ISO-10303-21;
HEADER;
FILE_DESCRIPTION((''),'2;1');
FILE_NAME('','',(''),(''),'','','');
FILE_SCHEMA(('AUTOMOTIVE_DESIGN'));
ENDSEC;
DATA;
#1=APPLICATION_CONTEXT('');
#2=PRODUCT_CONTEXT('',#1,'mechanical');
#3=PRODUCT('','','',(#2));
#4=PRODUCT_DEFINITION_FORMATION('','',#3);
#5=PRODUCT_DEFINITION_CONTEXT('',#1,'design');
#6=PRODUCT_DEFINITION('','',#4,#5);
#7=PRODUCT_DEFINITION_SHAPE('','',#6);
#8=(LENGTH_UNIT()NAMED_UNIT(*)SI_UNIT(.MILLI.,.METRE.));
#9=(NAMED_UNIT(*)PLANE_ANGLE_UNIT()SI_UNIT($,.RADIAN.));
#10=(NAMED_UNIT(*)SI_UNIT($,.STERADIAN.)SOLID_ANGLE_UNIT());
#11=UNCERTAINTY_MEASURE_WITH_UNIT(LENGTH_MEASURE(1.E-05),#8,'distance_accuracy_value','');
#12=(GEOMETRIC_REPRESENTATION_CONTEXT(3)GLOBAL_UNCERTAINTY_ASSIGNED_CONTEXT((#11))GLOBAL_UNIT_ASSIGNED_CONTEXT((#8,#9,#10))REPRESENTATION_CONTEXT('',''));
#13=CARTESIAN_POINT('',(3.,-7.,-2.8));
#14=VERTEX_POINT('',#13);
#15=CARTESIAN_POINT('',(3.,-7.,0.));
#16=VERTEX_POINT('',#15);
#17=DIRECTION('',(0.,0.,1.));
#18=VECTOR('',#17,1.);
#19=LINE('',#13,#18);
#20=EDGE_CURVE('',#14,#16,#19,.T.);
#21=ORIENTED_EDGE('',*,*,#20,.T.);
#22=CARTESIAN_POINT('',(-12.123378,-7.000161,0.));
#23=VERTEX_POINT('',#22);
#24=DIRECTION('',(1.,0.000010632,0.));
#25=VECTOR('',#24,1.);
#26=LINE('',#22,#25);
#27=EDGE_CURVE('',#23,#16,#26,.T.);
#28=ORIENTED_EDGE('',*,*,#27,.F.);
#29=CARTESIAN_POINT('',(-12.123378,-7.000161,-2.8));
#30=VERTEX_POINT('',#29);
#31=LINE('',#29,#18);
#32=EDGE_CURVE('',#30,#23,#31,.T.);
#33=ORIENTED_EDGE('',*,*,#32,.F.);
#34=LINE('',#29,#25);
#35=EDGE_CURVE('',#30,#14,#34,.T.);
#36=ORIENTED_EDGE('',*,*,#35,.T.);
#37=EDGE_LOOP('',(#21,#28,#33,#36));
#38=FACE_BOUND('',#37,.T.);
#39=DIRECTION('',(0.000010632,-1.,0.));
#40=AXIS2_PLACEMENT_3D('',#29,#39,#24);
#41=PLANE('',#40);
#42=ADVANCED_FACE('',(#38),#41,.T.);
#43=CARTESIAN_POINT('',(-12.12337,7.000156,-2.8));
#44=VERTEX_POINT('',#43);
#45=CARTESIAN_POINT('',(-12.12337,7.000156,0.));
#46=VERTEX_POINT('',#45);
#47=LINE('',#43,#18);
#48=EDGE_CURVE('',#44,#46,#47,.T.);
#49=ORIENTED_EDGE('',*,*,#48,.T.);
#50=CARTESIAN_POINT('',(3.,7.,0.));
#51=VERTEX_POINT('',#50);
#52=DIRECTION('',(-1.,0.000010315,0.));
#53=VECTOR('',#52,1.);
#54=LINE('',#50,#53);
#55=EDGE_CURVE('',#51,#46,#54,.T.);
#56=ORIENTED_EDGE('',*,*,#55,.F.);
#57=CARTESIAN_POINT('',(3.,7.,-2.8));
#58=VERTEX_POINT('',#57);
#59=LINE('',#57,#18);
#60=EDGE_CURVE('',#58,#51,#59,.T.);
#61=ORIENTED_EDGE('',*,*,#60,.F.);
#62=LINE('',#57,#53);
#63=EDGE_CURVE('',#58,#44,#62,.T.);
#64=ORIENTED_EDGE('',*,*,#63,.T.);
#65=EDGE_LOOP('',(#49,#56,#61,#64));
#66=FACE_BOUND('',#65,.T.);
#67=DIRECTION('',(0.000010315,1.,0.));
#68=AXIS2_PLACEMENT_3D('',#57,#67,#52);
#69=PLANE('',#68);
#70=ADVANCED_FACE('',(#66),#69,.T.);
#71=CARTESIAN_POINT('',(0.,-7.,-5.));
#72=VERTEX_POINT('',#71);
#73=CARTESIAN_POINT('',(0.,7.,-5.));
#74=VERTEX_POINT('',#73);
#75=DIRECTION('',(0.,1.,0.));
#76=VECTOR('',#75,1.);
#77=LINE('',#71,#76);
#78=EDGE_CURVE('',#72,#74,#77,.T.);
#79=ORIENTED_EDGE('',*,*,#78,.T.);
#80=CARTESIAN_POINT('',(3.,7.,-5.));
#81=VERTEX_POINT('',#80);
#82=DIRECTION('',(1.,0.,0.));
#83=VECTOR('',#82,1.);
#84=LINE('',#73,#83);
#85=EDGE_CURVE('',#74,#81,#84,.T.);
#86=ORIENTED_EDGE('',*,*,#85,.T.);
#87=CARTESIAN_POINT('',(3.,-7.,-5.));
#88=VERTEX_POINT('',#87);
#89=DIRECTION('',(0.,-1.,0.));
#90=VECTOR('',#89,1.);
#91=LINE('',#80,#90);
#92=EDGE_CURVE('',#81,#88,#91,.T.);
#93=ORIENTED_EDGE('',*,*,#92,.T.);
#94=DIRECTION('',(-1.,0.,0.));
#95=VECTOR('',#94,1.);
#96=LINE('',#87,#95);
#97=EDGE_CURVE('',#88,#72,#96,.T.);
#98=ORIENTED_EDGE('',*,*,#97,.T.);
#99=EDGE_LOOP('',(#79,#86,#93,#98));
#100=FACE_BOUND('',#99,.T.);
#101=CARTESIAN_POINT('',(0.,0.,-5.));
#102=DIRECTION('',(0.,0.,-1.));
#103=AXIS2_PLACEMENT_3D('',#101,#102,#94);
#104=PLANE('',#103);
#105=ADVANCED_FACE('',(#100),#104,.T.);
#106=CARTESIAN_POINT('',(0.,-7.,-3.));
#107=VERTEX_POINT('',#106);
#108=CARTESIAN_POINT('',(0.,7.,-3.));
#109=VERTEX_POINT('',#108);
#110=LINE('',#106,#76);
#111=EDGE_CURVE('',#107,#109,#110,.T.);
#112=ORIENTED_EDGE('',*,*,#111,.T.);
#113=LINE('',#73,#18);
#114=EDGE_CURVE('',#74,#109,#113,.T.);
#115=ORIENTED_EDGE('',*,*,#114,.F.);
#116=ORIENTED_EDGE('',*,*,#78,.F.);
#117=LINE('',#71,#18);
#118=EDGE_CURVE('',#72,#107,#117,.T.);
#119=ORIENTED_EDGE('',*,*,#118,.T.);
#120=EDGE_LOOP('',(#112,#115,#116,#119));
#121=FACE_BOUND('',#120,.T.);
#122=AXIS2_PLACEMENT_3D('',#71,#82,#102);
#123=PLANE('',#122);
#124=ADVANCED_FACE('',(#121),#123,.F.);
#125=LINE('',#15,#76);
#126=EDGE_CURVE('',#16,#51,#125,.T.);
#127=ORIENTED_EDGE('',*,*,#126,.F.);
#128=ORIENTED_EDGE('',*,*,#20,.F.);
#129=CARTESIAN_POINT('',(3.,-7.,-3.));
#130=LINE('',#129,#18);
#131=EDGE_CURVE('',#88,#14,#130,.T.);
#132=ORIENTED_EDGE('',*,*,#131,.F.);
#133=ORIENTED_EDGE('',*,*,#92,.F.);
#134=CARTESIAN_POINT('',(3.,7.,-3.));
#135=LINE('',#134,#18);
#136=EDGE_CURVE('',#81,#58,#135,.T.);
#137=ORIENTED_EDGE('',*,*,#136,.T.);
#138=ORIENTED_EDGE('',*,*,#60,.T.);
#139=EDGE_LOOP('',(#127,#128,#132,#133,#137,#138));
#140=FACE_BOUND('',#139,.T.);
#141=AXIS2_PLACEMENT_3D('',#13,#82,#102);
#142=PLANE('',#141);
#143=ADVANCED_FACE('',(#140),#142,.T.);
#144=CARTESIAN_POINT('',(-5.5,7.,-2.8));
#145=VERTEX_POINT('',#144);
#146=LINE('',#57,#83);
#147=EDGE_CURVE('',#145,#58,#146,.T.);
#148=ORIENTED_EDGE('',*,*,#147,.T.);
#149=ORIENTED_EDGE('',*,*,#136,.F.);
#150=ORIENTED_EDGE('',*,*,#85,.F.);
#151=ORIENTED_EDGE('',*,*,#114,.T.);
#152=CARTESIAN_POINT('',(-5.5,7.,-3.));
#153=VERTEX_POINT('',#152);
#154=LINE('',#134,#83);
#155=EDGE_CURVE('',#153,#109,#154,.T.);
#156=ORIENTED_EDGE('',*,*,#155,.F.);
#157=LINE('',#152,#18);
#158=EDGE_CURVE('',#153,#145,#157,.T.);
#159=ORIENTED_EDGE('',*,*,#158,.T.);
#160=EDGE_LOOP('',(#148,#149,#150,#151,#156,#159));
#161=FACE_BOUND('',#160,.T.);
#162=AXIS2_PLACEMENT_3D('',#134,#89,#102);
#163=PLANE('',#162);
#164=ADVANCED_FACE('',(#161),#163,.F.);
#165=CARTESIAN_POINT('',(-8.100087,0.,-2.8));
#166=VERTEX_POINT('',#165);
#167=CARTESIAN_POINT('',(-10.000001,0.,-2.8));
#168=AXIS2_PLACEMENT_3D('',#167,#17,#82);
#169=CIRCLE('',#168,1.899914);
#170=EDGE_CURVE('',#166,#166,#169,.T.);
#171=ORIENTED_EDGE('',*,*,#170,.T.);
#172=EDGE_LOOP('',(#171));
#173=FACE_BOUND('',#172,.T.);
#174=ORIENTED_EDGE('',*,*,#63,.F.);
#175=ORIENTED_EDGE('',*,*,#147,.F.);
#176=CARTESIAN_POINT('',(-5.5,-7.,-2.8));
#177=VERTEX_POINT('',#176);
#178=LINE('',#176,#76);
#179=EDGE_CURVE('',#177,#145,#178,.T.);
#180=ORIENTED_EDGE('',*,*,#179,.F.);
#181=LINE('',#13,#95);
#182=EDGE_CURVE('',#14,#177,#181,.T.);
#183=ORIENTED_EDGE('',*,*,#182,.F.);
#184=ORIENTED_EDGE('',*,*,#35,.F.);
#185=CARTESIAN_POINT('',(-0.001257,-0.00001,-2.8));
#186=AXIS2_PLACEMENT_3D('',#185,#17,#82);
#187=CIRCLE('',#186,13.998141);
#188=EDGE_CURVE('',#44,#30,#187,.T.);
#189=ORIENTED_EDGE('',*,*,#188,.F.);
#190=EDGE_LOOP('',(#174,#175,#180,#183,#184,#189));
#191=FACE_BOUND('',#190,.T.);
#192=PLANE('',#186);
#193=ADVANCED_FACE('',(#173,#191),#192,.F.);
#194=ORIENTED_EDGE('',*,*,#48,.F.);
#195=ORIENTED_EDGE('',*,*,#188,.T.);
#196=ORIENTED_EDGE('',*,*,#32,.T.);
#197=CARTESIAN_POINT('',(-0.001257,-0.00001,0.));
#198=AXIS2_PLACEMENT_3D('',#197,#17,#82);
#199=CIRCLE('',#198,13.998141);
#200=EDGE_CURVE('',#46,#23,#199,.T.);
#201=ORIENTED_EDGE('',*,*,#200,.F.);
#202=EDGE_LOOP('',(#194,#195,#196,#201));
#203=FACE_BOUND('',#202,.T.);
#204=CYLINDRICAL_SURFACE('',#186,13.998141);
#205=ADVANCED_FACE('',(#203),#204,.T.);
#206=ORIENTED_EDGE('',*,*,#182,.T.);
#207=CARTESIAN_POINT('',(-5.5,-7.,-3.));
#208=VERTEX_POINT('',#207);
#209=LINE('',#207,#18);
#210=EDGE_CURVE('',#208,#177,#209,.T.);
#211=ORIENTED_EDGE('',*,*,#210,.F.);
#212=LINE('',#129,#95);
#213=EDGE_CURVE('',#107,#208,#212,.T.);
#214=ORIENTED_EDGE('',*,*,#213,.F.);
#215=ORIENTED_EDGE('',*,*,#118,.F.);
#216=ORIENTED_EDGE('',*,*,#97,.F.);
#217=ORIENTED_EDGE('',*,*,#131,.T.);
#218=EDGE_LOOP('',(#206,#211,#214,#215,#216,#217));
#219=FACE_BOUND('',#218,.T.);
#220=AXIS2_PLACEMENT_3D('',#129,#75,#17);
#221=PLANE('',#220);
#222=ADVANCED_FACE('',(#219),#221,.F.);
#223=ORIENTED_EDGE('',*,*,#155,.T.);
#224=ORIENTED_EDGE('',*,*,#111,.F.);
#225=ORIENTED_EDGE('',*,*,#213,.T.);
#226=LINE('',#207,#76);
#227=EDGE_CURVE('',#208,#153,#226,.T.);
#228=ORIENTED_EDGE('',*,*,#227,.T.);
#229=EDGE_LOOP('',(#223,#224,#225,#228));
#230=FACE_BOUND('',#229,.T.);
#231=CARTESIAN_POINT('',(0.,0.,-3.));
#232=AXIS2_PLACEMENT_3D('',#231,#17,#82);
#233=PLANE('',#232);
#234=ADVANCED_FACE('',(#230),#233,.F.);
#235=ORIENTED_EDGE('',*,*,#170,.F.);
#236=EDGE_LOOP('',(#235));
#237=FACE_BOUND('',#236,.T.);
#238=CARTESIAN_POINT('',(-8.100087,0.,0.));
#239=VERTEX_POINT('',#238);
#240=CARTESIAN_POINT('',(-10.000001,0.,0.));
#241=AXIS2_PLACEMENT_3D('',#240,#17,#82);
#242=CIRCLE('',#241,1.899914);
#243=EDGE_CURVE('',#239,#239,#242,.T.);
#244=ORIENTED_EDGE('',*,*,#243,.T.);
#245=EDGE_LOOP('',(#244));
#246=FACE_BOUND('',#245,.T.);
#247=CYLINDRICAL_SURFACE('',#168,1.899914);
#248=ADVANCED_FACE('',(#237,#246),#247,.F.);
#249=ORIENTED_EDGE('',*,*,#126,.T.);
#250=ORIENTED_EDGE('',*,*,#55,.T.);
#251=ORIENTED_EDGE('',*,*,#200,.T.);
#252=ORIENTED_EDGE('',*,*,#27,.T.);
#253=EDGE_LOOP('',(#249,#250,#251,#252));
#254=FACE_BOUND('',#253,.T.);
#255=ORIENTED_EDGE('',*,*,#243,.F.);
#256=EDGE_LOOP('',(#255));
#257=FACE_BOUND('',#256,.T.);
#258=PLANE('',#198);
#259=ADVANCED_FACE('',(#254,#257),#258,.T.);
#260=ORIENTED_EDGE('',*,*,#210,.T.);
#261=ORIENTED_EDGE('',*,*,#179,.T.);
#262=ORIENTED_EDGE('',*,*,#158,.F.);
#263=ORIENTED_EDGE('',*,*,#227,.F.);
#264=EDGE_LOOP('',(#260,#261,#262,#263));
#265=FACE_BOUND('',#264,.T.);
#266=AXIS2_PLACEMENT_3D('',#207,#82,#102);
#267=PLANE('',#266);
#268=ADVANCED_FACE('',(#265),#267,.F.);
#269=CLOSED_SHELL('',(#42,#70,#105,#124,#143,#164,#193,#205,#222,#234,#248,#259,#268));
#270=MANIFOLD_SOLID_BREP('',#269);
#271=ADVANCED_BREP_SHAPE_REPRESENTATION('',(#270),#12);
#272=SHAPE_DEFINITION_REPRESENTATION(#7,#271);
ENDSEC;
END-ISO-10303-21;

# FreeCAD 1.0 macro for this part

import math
import FreeCAD as App
import Part
import Sketcher

V = App.Vector
Q = App.Units.Quantity


def add_polygon(sketch, points):
    """Adds a closed chain of lines whose ends are joined by coincident constraints."""
    first, n = sketch.GeometryCount, len(points)
    for a, b in zip(points, points[1:] + points[:1]):
        sketch.addGeometry(Part.LineSegment(App.Vector(*a, 0), App.Vector(*b, 0)), False)
    for i in range(n):
        sketch.addConstraint(Sketcher.Constraint("Coincident", first + i, 2, first + (i + 1) % n, 1))

doc = App.newDocument("Part")
body = doc.addObject("PartDesign::Body", "Body")

# Sketch on XY plane
sketch1 = doc.addObject("Sketcher::SketchObject", "Sketch")
body.addObject(sketch1)
sketch1.AttachmentSupport = (doc.XY_Plane, [""])
sketch1.MapMode = "FlatFace"
sketch1.addGeometry(Part.LineSegment(V(3, 7, 0), V(-12.12337, 7.000156, 0)), False)
sketch1.addGeometry(Part.ArcOfCircle(Part.Circle(V(-0.001257, -0.00001, 0), V(0, 0, 1), 13.998141), math.radians(149.994823), math.radians(210.005108)), False)
sketch1.addGeometry(Part.LineSegment(V(-12.123378, -7.000161, 0), V(3, -7, 0)), False)
sketch1.addGeometry(Part.LineSegment(V(3, -7, 0), V(3, 7, 0)), False)
sketch1.addGeometry(Part.Circle(V(-10.000001, 0, 0), V(0, 0, 1), 1.899914), False)
sketch1.addConstraint(Sketcher.Constraint("Coincident", 0, 2, 1, 1))
sketch1.addConstraint(Sketcher.Constraint("Coincident", 1, 2, 2, 1))
sketch1.addConstraint(Sketcher.Constraint("Coincident", 2, 2, 3, 1))
sketch1.addConstraint(Sketcher.Constraint("Coincident", 3, 2, 0, 1))
sketch1.addConstraint(Sketcher.Constraint("Vertical", 3))
sketch1.addConstraint(Sketcher.Constraint("Symmetric", 0, 2, 1, 2, -1))
sketch1.addConstraint(Sketcher.Constraint("PointOnObject", 4, 3, -1))
sketch1.addConstraint(Sketcher.Constraint("DistanceY", 3, 1, 3, 2, Q("14 mm")))
sketch1.addConstraint(Sketcher.Constraint("DistanceX", 4, 3, -1, 1, Q("10.000001 mm")))
sketch1.addConstraint(Sketcher.Constraint("DistanceX", -1, 1, 2, 2, Q("3 mm")))
sketch1.addConstraint(Sketcher.Constraint("DistanceY", 2, 2, -1, 1, Q("7 mm")))
sketch1.addConstraint(Sketcher.Constraint("Radius", 1, Q("13.998141 mm")))
sketch1.addConstraint(Sketcher.Constraint("Diameter", 4, Q("3.799827 mm")))
sketch1.addConstraint(Sketcher.Constraint("Distance", 0, Q("15.12337 mm")))
sketch1.addConstraint(Sketcher.Constraint("DistanceY", 1, 2, -1, 1, Q("7.000161 mm")))
pad1 = doc.addObject("PartDesign::Pad", "Pad")
body.addObject(pad1)
pad1.Profile = sketch1
pad1.Length = 2.8
pad1.Reversed = True

# Sketch on XY plane
sketch2 = doc.addObject("Sketcher::SketchObject", "Sketch001")
body.addObject(sketch2)
sketch2.AttachmentSupport = (doc.XY_Plane, [""])
sketch2.MapMode = "FlatFace"
sketch2.AttachmentOffset = App.Placement(V(0, 0, -2.8), App.Rotation())
add_polygon(sketch2, [(3, 7), (3, -7), (-5.5, -7), (-5.5, 7)])  # lines 0-3
sketch2.addConstraint(Sketcher.Constraint("Vertical", 0))
sketch2.addConstraint(Sketcher.Constraint("Horizontal", 1))
sketch2.addConstraint(Sketcher.Constraint("Vertical", 2))
sketch2.addConstraint(Sketcher.Constraint("Horizontal", 3))
sketch2.addConstraint(Sketcher.Constraint("DistanceY", 0, 2, 0, 1, Q("14 mm")))
sketch2.addConstraint(Sketcher.Constraint("DistanceX", 1, 2, 1, 1, Q("8.5 mm")))
sketch2.addConstraint(Sketcher.Constraint("DistanceX", -1, 1, 0, 2, Q("3 mm")))
sketch2.addConstraint(Sketcher.Constraint("DistanceY", 0, 2, -1, 1, Q("7 mm")))
pad2 = doc.addObject("PartDesign::Pad", "Pad001")
body.addObject(pad2)
pad2.Profile = sketch2
pad2.Length = 0.2
pad2.Reversed = True

# Sketch on XY plane
sketch3 = doc.addObject("Sketcher::SketchObject", "Sketch002")
body.addObject(sketch3)
sketch3.AttachmentSupport = (doc.XY_Plane, [""])
sketch3.MapMode = "FlatFace"
sketch3.AttachmentOffset = App.Placement(V(0, 0, -3), App.Rotation())
add_polygon(sketch3, [(3, 7), (3, -7), (0, -7), (0, 7)])  # lines 0-3
sketch3.addConstraint(Sketcher.Constraint("Vertical", 0))
sketch3.addConstraint(Sketcher.Constraint("Horizontal", 1))
sketch3.addConstraint(Sketcher.Constraint("Vertical", 2))
sketch3.addConstraint(Sketcher.Constraint("Horizontal", 3))
sketch3.addConstraint(Sketcher.Constraint("Symmetric", 1, 2, 2, 2, -1, 1))
sketch3.addConstraint(Sketcher.Constraint("DistanceX", 1, 2, 1, 1, Q("3 mm")))
sketch3.addConstraint(Sketcher.Constraint("DistanceY", 0, 2, 0, 1, Q("14 mm")))
pad3 = doc.addObject("PartDesign::Pad", "Pad002")
body.addObject(pad3)
pad3.Profile = sketch3
pad3.Length = 2
pad3.Reversed = True

doc.recompute()
